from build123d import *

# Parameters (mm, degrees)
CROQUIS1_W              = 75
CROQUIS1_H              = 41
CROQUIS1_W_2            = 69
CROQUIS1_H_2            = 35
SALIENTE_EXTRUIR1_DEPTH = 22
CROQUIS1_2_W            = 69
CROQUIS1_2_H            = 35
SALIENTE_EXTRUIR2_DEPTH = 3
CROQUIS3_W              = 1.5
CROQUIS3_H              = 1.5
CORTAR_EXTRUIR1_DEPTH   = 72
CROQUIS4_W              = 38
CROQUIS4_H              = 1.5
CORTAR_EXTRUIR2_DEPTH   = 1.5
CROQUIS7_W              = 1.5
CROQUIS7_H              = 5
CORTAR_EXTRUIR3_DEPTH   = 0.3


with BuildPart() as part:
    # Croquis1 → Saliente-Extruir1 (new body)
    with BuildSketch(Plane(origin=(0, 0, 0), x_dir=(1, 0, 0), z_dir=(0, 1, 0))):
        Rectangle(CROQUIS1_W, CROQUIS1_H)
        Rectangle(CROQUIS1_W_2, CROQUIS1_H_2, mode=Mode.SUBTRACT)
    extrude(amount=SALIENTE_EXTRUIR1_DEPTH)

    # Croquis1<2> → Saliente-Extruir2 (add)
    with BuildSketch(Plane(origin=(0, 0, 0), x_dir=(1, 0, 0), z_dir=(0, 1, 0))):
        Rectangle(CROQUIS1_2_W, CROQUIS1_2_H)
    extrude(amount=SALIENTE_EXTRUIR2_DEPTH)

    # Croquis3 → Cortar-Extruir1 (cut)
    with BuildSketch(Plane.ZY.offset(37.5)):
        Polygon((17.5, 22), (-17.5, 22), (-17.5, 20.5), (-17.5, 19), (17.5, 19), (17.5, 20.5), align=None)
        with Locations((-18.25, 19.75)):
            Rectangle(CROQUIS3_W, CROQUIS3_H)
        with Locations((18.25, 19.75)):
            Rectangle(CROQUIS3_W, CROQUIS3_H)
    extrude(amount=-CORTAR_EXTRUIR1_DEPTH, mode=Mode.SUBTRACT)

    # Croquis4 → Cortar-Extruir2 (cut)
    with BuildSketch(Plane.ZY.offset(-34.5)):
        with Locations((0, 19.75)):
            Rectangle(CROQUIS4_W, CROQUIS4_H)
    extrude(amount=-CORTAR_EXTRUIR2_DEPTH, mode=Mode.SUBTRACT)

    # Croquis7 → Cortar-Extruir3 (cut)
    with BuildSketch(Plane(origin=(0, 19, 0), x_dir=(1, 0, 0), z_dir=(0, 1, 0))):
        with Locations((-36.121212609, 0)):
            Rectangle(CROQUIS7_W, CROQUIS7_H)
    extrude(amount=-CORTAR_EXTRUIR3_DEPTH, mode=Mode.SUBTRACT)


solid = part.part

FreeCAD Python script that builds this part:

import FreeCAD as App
import Part
import Sketcher

V = App.Vector
Q = App.Units.Quantity

doc = App.newDocument("Part")
body = doc.addObject("PartDesign::Body", "Body")

# Sketch on XZ plane
sketch1 = body.newObject("Sketcher::SketchObject", "Sketch")
sketch1.AttachmentSupport = (doc.getObject("XZ_Plane"), [""])
sketch1.MapMode = "FlatFace"
sketch1.addGeometry([
    Part.LineSegment(V(-37.5, -20.5, 0), V(-37.5, 20.5, 0)),  # 0
    Part.LineSegment(V(-37.5, 20.5, 0), V(37.5, 20.5, 0)),  # 1
    Part.LineSegment(V(37.5, 20.5, 0), V(37.5, -20.5, 0)),  # 2
    Part.LineSegment(V(37.5, -20.5, 0), V(-37.5, -20.5, 0)),  # 3
    Part.LineSegment(V(34.5, 17.5, 0), V(-34.5, 17.5, 0)),  # 4
    Part.LineSegment(V(-34.5, 17.5, 0), V(-34.5, -17.5, 0)),  # 5
    Part.LineSegment(V(-34.5, -17.5, 0), V(34.5, -17.5, 0)),  # 6
    Part.LineSegment(V(34.5, -17.5, 0), V(34.5, 17.5, 0)),  # 7
], False)
sketch1.addConstraint([
    Sketcher.Constraint("Coincident", 0, 2, 1, 1),
    Sketcher.Constraint("Coincident", 1, 2, 2, 1),
    Sketcher.Constraint("Coincident", 2, 2, 3, 1),
    Sketcher.Constraint("Coincident", 3, 2, 0, 1),
    Sketcher.Constraint("Coincident", 4, 2, 5, 1),
    Sketcher.Constraint("Coincident", 5, 2, 6, 1),
    Sketcher.Constraint("Coincident", 6, 2, 7, 1),
    Sketcher.Constraint("Coincident", 7, 2, 4, 1),
    Sketcher.Constraint("Vertical", 0),
    Sketcher.Constraint("Horizontal", 1),
    Sketcher.Constraint("Vertical", 2),
    Sketcher.Constraint("Horizontal", 3),
    Sketcher.Constraint("Horizontal", 4),
    Sketcher.Constraint("Vertical", 5),
    Sketcher.Constraint("Horizontal", 6),
    Sketcher.Constraint("Vertical", 7),
    Sketcher.Constraint("Symmetric", 0, 2, 2, 2, -1, 1),
    Sketcher.Constraint("Symmetric", 4, 2, 6, 2, -1, 1),
    Sketcher.Constraint("DistanceX", 1, 1, 1, 2, Q("75 mm")),
    Sketcher.Constraint("DistanceX", 4, 2, 4, 1, Q("69 mm")),
    Sketcher.Constraint("DistanceY", 0, 1, 0, 2, Q("41 mm")),
    Sketcher.Constraint("DistanceY", 5, 2, 5, 1, Q("35 mm")),
])
pad1 = body.newObject("PartDesign::Pad", "Pad")
pad1.Profile = sketch1
pad1.Length = 22
pad1.Reversed = True

# Sketch on XZ plane
sketch2 = body.newObject("Sketcher::SketchObject", "Sketch001")
sketch2.AttachmentSupport = (doc.getObject("XZ_Plane"), [""])
sketch2.MapMode = "FlatFace"
sketch2.addGeometry([
    Part.LineSegment(V(-34.5, -17.5, 0), V(-34.5, 17.5, 0)),
    Part.LineSegment(V(-34.5, 17.5, 0), V(34.5, 17.5, 0)),
    Part.LineSegment(V(34.5, 17.5, 0), V(34.5, -17.5, 0)),
    Part.LineSegment(V(34.5, -17.5, 0), V(-34.5, -17.5, 0)),
], False)
sketch2.addConstraint([
    Sketcher.Constraint("Coincident", 0, 2, 1, 1),
    Sketcher.Constraint("Coincident", 1, 2, 2, 1),
    Sketcher.Constraint("Coincident", 2, 2, 3, 1),
    Sketcher.Constraint("Coincident", 3, 2, 0, 1),
    Sketcher.Constraint("Vertical", 0),
    Sketcher.Constraint("Horizontal", 1),
    Sketcher.Constraint("Vertical", 2),
    Sketcher.Constraint("Horizontal", 3),
    Sketcher.Constraint("Symmetric", 0, 2, 2, 2, -1, 1),
    Sketcher.Constraint("DistanceX", 1, 1, 1, 2, Q("69 mm")),
    Sketcher.Constraint("DistanceY", 0, 1, 0, 2, Q("35 mm")),
])
pad2 = body.newObject("PartDesign::Pad", "Pad001")
pad2.Profile = sketch2
pad2.Length = 3
pad2.Reversed = True

# Sketch on YZ plane
sketch3 = body.newObject("Sketcher::SketchObject", "Sketch002")
sketch3.AttachmentSupport = (doc.getObject("YZ_Plane"), [""])
sketch3.MapMode = "FlatFace"
sketch3.AttachmentOffset = App.Placement(V(0, 0, -37.5), App.Rotation())
sketch3.addGeometry([
    Part.LineSegment(V(22, 17.5, 0), V(22, -17.5, 0)),  # 0
    Part.LineSegment(V(22, -17.5, 0), V(20.5, -17.5, 0)),  # 1
    Part.LineSegment(V(20.5, -17.5, 0), V(20.5, -19, 0)),  # 2
    Part.LineSegment(V(20.5, -19, 0), V(19, -19, 0)),  # 3
    Part.LineSegment(V(19, -19, 0), V(19, 19, 0)),  # 4
    Part.LineSegment(V(19, 19, 0), V(20.5, 19, 0)),  # 5
    Part.LineSegment(V(20.5, 19, 0), V(20.5, 17.5, 0)),  # 6
    Part.LineSegment(V(20.5, 17.5, 0), V(22, 17.5, 0)),  # 7
], False)
sketch3.addConstraint([
    Sketcher.Constraint("Coincident", 0, 2, 1, 1),
    Sketcher.Constraint("Coincident", 1, 2, 2, 1),
    Sketcher.Constraint("Coincident", 2, 2, 3, 1),
    Sketcher.Constraint("Coincident", 3, 2, 4, 1),
    Sketcher.Constraint("Coincident", 4, 2, 5, 1),
    Sketcher.Constraint("Coincident", 5, 2, 6, 1),
    Sketcher.Constraint("Coincident", 6, 2, 7, 1),
    Sketcher.Constraint("Coincident", 7, 2, 0, 1),
    Sketcher.Constraint("Vertical", 0),
    Sketcher.Constraint("Horizontal", 1),
    Sketcher.Constraint("Vertical", 2),
    Sketcher.Constraint("Horizontal", 3),
    Sketcher.Constraint("Vertical", 4),
    Sketcher.Constraint("Horizontal", 5),
    Sketcher.Constraint("Vertical", 6),
    Sketcher.Constraint("Horizontal", 7),
    Sketcher.Constraint("Symmetric", 2, 2, 5, 2, -1),
    Sketcher.Constraint("Equal", 1, 3),
    Sketcher.Constraint("Equal", 7, 2),
    Sketcher.Constraint("Equal", 2, 6),
    Sketcher.Constraint("DistanceY", 0, 2, 0, 1, Q("35 mm")),
    Sketcher.Constraint("DistanceY", 4, 1, 4, 2, Q("38 mm")),
    Sketcher.Constraint("DistanceX", -1, 1, 0, 2, Q("22 mm")),
])
pocket1 = body.newObject("PartDesign::Pocket", "Pocket")
pocket1.Profile = sketch3
pocket1.Length = 72
pocket1.Reversed = True

# Sketch on YZ plane
sketch4 = body.newObject("Sketcher::SketchObject", "Sketch003")
sketch4.AttachmentSupport = (doc.getObject("YZ_Plane"), [""])
sketch4.MapMode = "FlatFace"
sketch4.AttachmentOffset = App.Placement(V(0, 0, 34.5), App.Rotation())
sketch4.addGeometry([
    Part.LineSegment(V(20.5, -19, 0), V(19, -19, 0)),
    Part.LineSegment(V(19, -19, 0), V(19, 19, 0)),
    Part.LineSegment(V(19, 19, 0), V(20.5, 19, 0)),
    Part.LineSegment(V(20.5, 19, 0), V(20.5, -19, 0)),
], False)
sketch4.addConstraint([
    Sketcher.Constraint("Coincident", 0, 2, 1, 1),
    Sketcher.Constraint("Coincident", 1, 2, 2, 1),
    Sketcher.Constraint("Coincident", 2, 2, 3, 1),
    Sketcher.Constraint("Coincident", 3, 2, 0, 1),
    Sketcher.Constraint("Horizontal", 0),
    Sketcher.Constraint("Vertical", 1),
    Sketcher.Constraint("Horizontal", 2),
    Sketcher.Constraint("Vertical", 3),
    Sketcher.Constraint("DistanceY", 1, 1, 1, 2, Q("38 mm")),
    Sketcher.Constraint("DistanceX", 0, 2, 0, 1, Q("1.5 mm")),
    Sketcher.Constraint("DistanceX", -1, 1, 0, 2, Q("19 mm")),
    Sketcher.Constraint("DistanceY", 0, 2, -1, 1, Q("19 mm")),
])
pocket2 = body.newObject("PartDesign::Pocket", "Pocket001")
pocket2.Profile = sketch4
pocket2.Length = 1.5
pocket2.Reversed = True

# Sketch on XZ plane
sketch5 = body.newObject("Sketcher::SketchObject", "Sketch004")
sketch5.AttachmentSupport = (doc.getObject("XZ_Plane"), [""])
sketch5.MapMode = "FlatFace"
sketch5.AttachmentOffset = App.Placement(V(0, 0, -19), App.Rotation())
sketch5.addGeometry([
    Part.LineSegment(V(-36.871213, -2.5, 0), V(-36.871213, 2.5, 0)),
    Part.LineSegment(V(-36.871213, 2.5, 0), V(-35.371213, 2.5, 0)),
    Part.LineSegment(V(-35.371213, 2.5, 0), V(-35.371213, -2.5, 0)),
    Part.LineSegment(V(-35.371213, -2.5, 0), V(-36.871213, -2.5, 0)),
], False)
sketch5.addConstraint([
    Sketcher.Constraint("Coincident", 0, 2, 1, 1),
    Sketcher.Constraint("Coincident", 1, 2, 2, 1),
    Sketcher.Constraint("Coincident", 2, 2, 3, 1),
    Sketcher.Constraint("Coincident", 3, 2, 0, 1),
    Sketcher.Constraint("Vertical", 0),
    Sketcher.Constraint("Horizontal", 1),
    Sketcher.Constraint("Vertical", 2),
    Sketcher.Constraint("Horizontal", 3),
    Sketcher.Constraint("DistanceY", 0, 1, 0, 2, Q("5 mm")),
    Sketcher.Constraint("DistanceX", 1, 1, 1, 2, Q("1.5 mm")),
    Sketcher.Constraint("DistanceY", -1, 1, 0, 2, Q("2.5 mm")),
    Sketcher.Constraint("DistanceX", 0, 2, -1, 1, Q("36.871213 mm")),
])
pocket3 = body.newObject("PartDesign::Pocket", "Pocket002")
pocket3.Profile = sketch5
pocket3.Length = 0.3
pocket3.Reversed = True

doc.recompute()
